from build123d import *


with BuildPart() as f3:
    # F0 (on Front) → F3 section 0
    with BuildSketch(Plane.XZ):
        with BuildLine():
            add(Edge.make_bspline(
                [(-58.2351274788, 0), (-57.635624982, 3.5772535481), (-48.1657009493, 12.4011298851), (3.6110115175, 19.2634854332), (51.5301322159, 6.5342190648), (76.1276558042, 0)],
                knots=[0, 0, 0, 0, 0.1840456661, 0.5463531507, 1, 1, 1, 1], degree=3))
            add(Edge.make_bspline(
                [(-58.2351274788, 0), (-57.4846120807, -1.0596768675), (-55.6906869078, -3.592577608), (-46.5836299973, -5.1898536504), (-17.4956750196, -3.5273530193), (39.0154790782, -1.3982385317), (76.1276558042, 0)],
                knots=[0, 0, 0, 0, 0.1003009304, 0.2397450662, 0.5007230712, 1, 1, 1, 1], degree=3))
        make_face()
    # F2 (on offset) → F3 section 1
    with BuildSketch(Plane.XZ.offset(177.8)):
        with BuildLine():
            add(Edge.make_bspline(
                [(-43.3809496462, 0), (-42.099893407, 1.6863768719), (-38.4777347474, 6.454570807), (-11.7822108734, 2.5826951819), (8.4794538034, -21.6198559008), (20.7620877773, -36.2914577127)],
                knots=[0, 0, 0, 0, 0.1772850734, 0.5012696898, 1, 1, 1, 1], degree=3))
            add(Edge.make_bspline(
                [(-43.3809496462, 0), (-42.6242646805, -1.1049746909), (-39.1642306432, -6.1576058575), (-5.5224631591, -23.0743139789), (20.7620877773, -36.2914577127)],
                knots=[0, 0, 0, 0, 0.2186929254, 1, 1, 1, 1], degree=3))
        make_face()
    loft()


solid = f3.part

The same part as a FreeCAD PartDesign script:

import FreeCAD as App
import Part
import Sketcher

V = App.Vector

doc = App.newDocument("Part")
body = doc.addObject("PartDesign::Body", "Body")

sketch1 = body.newObject("Sketcher::SketchObject", "Sketch")
sketch1.AttachmentSupport = (doc.getObject("XZ_Plane"), [""])
sketch1.MapMode = "FlatFace"
sketch1.addGeometry([
    Part.BSplineCurve([V(-58.235127, 0, 0), V(-57.635625, 3.577254, 0), V(-48.165701, 12.40113, 0), V(3.611012, 19.263485, 0), V(51.530132, 6.534219, 0), V(76.127656, 0, 0)], [4, 1, 1, 4], [0, 0.184045666, 0.546353151, 1], False, 3, [1, 1, 1, 1, 1, 1], False),
    Part.BSplineCurve([V(-58.235127, 0, 0), V(-57.484612, -1.059677, 0), V(-55.690687, -3.592578, 0), V(-46.58363, -5.189854, 0), V(-17.495675, -3.527353, 0), V(39.015479, -1.398239, 0), V(76.127656, 0, 0)], [4, 1, 1, 1, 4], [0, 0.10030093, 0.239745066, 0.500723071, 1], False, 3, [1, 1, 1, 1, 1, 1, 1], False),
], False)
sketch1.addConstraint([
    Sketcher.Constraint("Block", 0),
    Sketcher.Constraint("Block", 1),
])

sketch2 = body.newObject("Sketcher::SketchObject", "Sketch001")
sketch2.AttachmentSupport = (doc.getObject("XZ_Plane"), [""])
sketch2.MapMode = "FlatFace"
sketch2.AttachmentOffset = App.Placement(V(0, 0, 177.8), App.Rotation())
sketch2.addGeometry([
    Part.BSplineCurve([V(-43.38095, 0, 0), V(-42.099893, 1.686377, 0), V(-38.477735, 6.454571, 0), V(-11.782211, 2.582695, 0), V(8.479454, -21.619856, 0), V(20.762088, -36.291458, 0)], [4, 1, 1, 4], [0, 0.177285073, 0.50126969, 1], False, 3, [1, 1, 1, 1, 1, 1], False),
    Part.BSplineCurve([V(-43.38095, 0, 0), V(-42.624265, -1.104975, 0), V(-39.164231, -6.157606, 0), V(-5.522463, -23.074314, 0), V(20.762088, -36.291458, 0)], [4, 1, 4], [0, 0.218692925, 1], False, 3, [1, 1, 1, 1, 1], False),
], False)
sketch2.addConstraint([
    Sketcher.Constraint("Block", 0),
    Sketcher.Constraint("Block", 1),
])

additiveloft = body.newObject("PartDesign::AdditiveLoft", "AdditiveLoft")
additiveloft.Profile = sketch1
additiveloft.Sections = [sketch2]

doc.recompute()
